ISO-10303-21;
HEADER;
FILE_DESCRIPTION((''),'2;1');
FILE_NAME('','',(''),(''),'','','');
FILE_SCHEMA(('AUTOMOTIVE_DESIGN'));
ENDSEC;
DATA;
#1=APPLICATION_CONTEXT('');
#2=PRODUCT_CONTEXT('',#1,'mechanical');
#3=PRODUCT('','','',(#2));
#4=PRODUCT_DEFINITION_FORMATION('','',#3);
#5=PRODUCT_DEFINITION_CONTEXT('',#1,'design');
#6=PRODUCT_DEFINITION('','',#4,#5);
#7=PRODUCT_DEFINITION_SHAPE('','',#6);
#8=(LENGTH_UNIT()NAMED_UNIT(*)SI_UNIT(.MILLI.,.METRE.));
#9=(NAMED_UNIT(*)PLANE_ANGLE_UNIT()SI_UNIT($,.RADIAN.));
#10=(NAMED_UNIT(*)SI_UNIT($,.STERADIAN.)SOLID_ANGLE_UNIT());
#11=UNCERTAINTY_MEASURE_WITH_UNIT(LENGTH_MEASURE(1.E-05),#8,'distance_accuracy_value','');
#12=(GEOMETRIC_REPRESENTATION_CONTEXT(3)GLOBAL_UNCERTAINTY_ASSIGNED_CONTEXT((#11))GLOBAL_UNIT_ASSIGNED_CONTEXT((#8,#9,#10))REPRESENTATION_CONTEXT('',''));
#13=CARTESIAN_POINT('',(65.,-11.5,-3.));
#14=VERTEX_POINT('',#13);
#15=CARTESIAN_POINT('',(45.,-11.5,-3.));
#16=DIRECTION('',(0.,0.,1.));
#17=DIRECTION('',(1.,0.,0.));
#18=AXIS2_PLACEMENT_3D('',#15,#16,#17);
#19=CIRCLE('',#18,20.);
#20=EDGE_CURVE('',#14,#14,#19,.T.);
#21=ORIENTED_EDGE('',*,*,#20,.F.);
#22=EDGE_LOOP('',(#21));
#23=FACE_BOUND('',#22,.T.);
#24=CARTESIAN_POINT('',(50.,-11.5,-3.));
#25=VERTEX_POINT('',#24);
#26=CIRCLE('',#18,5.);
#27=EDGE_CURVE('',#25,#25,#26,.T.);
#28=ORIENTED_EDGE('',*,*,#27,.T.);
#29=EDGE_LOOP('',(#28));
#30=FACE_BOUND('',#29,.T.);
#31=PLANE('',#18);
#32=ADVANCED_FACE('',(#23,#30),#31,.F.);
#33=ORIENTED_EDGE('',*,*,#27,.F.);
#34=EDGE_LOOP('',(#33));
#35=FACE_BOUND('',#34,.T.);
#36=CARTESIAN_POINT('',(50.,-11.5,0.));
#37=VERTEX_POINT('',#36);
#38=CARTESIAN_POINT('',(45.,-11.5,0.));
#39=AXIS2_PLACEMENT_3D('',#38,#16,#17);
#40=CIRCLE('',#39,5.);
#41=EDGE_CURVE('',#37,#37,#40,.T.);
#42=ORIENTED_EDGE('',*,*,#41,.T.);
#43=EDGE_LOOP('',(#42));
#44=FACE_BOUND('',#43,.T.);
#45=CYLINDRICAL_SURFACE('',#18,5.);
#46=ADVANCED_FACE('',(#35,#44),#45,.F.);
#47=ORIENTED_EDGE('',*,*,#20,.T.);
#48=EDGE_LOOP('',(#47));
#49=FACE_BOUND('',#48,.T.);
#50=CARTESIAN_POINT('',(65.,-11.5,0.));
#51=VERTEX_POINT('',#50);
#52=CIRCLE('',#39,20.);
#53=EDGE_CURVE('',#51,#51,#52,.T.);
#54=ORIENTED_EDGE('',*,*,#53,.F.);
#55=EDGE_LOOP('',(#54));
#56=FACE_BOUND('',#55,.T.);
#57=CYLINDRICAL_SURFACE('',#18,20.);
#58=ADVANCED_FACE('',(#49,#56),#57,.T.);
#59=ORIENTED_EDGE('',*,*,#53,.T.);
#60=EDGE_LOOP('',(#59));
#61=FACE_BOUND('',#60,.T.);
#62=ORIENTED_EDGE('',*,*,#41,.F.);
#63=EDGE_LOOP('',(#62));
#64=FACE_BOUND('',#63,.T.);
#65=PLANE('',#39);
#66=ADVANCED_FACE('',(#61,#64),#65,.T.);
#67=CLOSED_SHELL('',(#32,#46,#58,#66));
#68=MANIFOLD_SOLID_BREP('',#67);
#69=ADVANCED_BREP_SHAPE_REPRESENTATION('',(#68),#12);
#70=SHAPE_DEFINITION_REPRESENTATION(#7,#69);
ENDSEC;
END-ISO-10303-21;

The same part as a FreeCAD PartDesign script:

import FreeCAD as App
import Part
import Sketcher

doc = App.newDocument("Part")
params = doc.addObject("Spreadsheet::Sheet", "Params")
for row, (alias, value) in enumerate([
    ("sketch1_diameter", "40 mm"),
    ("sketch1_diameter2", "10 mm"),
    ("pad1_length", "3 mm"),
], start=1):
    params.set(f"A{row}", alias)
    params.set(f"B{row}", "=" + value)
    params.setAlias(f"B{row}", alias)

body = doc.addObject("PartDesign::Body", "Body")

# Sketch on XY plane
sketch1 = body.newObject("Sketcher::SketchObject", "Sketch")
sketch1.AttachmentSupport = (doc.getObject("XY_Plane"), [""])
sketch1.MapMode = "FlatFace"
sketch1.addGeometry([
    Part.Circle(App.Vector(45, -12, 0), App.Vector(0, 0, 1), 20),
    Part.Circle(App.Vector(45, -12, 0), App.Vector(0, 0, 1), 5),
], False)
sketch1.addConstraint([
    Sketcher.Constraint("Coincident", 1, 3, 0, 3),
    Sketcher.Constraint("Diameter", 0, 40.0),
    Sketcher.Constraint("Diameter", 1, 10.0),
    Sketcher.Constraint("DistanceX", -1, 1, 0, 3, 45.0),
    Sketcher.Constraint("DistanceY", 0, 3, -1, 1, 11.5),
])
sketch1.setExpression("Constraints[1]", "Params.sketch1_diameter")
sketch1.setExpression("Constraints[2]", "Params.sketch1_diameter2")
pad1 = body.newObject("PartDesign::Pad", "Pad")
pad1.Profile = sketch1
pad1.setExpression("Length", "Params.pad1_length")
pad1.Reversed = True

doc.recompute()
